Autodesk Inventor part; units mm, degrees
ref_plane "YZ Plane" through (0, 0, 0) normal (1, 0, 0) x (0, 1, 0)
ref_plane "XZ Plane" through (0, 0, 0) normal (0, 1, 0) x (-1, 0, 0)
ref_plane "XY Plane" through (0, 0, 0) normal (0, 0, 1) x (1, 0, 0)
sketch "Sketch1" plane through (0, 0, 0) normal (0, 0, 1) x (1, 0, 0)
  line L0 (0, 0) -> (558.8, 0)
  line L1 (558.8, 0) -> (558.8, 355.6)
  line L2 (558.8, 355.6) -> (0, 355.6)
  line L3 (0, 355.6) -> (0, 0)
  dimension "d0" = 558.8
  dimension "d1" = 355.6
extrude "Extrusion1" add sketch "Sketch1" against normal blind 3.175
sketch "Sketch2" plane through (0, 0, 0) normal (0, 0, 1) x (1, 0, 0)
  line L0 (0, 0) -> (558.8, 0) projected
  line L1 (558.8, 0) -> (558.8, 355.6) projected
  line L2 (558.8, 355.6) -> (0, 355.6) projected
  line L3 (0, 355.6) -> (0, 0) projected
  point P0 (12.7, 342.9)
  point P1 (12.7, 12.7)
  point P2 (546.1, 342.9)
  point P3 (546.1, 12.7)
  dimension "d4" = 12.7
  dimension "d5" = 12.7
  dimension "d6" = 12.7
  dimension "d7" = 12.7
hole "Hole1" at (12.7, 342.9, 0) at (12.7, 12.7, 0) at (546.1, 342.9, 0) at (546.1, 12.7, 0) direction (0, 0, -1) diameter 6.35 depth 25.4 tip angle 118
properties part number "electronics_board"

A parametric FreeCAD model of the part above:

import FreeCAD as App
import Part
import Sketcher
Q = App.Units.Quantity

doc = App.newDocument("Part")
body = doc.addObject("PartDesign::Body", "Body")

sketch1 = body.newObject("Sketcher::SketchObject", "Sketch")
sketch1.AttachmentSupport = (doc.getObject("XY_Plane"), [""])
sketch1.MapMode = "FlatFace"
sketch1.addGeometry([
    Part.LineSegment(App.Vector(0, 356, 0), App.Vector(0, 0, 0)),
    Part.LineSegment(App.Vector(0, 0, 0), App.Vector(559, 0, 0)),
    Part.LineSegment(App.Vector(559, 0, 0), App.Vector(559, 356, 0)),
    Part.LineSegment(App.Vector(559, 356, 0), App.Vector(0, 356, 0)),
], False)
sketch1.addConstraint([
    Sketcher.Constraint("Coincident", 0, 2, 1, 1),
    Sketcher.Constraint("Coincident", 1, 2, 2, 1),
    Sketcher.Constraint("Coincident", 2, 2, 3, 1),
    Sketcher.Constraint("Coincident", 3, 2, 0, 1),
    Sketcher.Constraint("Vertical", 0),
    Sketcher.Constraint("Horizontal", 1),
    Sketcher.Constraint("Vertical", 2),
    Sketcher.Constraint("Horizontal", 3),
    Sketcher.Constraint("Coincident", 0, 2, -1, 1),
    Sketcher.Constraint("DistanceX", 1, 1, 1, 2, Q("22 in")),
    Sketcher.Constraint("DistanceY", 0, 2, 0, 1, Q("14 in")),
])
pad1 = body.newObject("PartDesign::Pad", "Pad")
pad1.Profile = sketch1
pad1.Length = Q("0.125 in")
pad1.Reversed = True

sketch2 = body.newObject("Sketcher::SketchObject", "Sketch001")
sketch2.AttachmentSupport = (doc.getObject("XY_Plane"), [""])
sketch2.MapMode = "FlatFace"
sketch2.addGeometry([
    Part.Circle(App.Vector(12.7, 342.9, 0), App.Vector(0, 0, 1), 3.2),
    Part.Circle(App.Vector(12.7, 12.7, 0), App.Vector(0, 0, 1), 3.2),
    Part.Circle(App.Vector(546.1, 342.9, 0), App.Vector(0, 0, 1), 3.2),
    Part.Circle(App.Vector(546.1, 12.7, 0), App.Vector(0, 0, 1), 3.2),
], False)
sketch2.addConstraint([
    Sketcher.Constraint("Equal", 0, 1),
    Sketcher.Constraint("Equal", 1, 2),
    Sketcher.Constraint("Equal", 2, 3),
    Sketcher.Constraint("Horizontal", 0, 3, 2, 3),
    Sketcher.Constraint("Horizontal", 1, 3, 3, 3),
    Sketcher.Constraint("Vertical", 0, 3, 1, 3),
    Sketcher.Constraint("Vertical", 2, 3, 3, 3),
    Sketcher.Constraint("Diameter", 0, Q("0.25 in")),
    Sketcher.Constraint("DistanceY", 1, 3, 0, 3, Q("13 in")),
    Sketcher.Constraint("DistanceX", 0, 3, 2, 3, Q("21 in")),
    Sketcher.Constraint("DistanceX", -1, 1, 0, 3, Q("0.5 in")),
    Sketcher.Constraint("DistanceY", -1, 1, 0, 3, Q("13.5 in")),
])
doc.recompute()
hole = body.newObject("PartDesign::Hole", "Hole")
hole.Profile = sketch2
hole.ThreadType = "None"
hole.Diameter = Q("0.25 in")
hole.DepthType = "Dimension"
hole.Depth = Q("1 in")
hole.DrillPoint = "Angled"
hole.DrillPointAngle = 118

doc.recompute()
